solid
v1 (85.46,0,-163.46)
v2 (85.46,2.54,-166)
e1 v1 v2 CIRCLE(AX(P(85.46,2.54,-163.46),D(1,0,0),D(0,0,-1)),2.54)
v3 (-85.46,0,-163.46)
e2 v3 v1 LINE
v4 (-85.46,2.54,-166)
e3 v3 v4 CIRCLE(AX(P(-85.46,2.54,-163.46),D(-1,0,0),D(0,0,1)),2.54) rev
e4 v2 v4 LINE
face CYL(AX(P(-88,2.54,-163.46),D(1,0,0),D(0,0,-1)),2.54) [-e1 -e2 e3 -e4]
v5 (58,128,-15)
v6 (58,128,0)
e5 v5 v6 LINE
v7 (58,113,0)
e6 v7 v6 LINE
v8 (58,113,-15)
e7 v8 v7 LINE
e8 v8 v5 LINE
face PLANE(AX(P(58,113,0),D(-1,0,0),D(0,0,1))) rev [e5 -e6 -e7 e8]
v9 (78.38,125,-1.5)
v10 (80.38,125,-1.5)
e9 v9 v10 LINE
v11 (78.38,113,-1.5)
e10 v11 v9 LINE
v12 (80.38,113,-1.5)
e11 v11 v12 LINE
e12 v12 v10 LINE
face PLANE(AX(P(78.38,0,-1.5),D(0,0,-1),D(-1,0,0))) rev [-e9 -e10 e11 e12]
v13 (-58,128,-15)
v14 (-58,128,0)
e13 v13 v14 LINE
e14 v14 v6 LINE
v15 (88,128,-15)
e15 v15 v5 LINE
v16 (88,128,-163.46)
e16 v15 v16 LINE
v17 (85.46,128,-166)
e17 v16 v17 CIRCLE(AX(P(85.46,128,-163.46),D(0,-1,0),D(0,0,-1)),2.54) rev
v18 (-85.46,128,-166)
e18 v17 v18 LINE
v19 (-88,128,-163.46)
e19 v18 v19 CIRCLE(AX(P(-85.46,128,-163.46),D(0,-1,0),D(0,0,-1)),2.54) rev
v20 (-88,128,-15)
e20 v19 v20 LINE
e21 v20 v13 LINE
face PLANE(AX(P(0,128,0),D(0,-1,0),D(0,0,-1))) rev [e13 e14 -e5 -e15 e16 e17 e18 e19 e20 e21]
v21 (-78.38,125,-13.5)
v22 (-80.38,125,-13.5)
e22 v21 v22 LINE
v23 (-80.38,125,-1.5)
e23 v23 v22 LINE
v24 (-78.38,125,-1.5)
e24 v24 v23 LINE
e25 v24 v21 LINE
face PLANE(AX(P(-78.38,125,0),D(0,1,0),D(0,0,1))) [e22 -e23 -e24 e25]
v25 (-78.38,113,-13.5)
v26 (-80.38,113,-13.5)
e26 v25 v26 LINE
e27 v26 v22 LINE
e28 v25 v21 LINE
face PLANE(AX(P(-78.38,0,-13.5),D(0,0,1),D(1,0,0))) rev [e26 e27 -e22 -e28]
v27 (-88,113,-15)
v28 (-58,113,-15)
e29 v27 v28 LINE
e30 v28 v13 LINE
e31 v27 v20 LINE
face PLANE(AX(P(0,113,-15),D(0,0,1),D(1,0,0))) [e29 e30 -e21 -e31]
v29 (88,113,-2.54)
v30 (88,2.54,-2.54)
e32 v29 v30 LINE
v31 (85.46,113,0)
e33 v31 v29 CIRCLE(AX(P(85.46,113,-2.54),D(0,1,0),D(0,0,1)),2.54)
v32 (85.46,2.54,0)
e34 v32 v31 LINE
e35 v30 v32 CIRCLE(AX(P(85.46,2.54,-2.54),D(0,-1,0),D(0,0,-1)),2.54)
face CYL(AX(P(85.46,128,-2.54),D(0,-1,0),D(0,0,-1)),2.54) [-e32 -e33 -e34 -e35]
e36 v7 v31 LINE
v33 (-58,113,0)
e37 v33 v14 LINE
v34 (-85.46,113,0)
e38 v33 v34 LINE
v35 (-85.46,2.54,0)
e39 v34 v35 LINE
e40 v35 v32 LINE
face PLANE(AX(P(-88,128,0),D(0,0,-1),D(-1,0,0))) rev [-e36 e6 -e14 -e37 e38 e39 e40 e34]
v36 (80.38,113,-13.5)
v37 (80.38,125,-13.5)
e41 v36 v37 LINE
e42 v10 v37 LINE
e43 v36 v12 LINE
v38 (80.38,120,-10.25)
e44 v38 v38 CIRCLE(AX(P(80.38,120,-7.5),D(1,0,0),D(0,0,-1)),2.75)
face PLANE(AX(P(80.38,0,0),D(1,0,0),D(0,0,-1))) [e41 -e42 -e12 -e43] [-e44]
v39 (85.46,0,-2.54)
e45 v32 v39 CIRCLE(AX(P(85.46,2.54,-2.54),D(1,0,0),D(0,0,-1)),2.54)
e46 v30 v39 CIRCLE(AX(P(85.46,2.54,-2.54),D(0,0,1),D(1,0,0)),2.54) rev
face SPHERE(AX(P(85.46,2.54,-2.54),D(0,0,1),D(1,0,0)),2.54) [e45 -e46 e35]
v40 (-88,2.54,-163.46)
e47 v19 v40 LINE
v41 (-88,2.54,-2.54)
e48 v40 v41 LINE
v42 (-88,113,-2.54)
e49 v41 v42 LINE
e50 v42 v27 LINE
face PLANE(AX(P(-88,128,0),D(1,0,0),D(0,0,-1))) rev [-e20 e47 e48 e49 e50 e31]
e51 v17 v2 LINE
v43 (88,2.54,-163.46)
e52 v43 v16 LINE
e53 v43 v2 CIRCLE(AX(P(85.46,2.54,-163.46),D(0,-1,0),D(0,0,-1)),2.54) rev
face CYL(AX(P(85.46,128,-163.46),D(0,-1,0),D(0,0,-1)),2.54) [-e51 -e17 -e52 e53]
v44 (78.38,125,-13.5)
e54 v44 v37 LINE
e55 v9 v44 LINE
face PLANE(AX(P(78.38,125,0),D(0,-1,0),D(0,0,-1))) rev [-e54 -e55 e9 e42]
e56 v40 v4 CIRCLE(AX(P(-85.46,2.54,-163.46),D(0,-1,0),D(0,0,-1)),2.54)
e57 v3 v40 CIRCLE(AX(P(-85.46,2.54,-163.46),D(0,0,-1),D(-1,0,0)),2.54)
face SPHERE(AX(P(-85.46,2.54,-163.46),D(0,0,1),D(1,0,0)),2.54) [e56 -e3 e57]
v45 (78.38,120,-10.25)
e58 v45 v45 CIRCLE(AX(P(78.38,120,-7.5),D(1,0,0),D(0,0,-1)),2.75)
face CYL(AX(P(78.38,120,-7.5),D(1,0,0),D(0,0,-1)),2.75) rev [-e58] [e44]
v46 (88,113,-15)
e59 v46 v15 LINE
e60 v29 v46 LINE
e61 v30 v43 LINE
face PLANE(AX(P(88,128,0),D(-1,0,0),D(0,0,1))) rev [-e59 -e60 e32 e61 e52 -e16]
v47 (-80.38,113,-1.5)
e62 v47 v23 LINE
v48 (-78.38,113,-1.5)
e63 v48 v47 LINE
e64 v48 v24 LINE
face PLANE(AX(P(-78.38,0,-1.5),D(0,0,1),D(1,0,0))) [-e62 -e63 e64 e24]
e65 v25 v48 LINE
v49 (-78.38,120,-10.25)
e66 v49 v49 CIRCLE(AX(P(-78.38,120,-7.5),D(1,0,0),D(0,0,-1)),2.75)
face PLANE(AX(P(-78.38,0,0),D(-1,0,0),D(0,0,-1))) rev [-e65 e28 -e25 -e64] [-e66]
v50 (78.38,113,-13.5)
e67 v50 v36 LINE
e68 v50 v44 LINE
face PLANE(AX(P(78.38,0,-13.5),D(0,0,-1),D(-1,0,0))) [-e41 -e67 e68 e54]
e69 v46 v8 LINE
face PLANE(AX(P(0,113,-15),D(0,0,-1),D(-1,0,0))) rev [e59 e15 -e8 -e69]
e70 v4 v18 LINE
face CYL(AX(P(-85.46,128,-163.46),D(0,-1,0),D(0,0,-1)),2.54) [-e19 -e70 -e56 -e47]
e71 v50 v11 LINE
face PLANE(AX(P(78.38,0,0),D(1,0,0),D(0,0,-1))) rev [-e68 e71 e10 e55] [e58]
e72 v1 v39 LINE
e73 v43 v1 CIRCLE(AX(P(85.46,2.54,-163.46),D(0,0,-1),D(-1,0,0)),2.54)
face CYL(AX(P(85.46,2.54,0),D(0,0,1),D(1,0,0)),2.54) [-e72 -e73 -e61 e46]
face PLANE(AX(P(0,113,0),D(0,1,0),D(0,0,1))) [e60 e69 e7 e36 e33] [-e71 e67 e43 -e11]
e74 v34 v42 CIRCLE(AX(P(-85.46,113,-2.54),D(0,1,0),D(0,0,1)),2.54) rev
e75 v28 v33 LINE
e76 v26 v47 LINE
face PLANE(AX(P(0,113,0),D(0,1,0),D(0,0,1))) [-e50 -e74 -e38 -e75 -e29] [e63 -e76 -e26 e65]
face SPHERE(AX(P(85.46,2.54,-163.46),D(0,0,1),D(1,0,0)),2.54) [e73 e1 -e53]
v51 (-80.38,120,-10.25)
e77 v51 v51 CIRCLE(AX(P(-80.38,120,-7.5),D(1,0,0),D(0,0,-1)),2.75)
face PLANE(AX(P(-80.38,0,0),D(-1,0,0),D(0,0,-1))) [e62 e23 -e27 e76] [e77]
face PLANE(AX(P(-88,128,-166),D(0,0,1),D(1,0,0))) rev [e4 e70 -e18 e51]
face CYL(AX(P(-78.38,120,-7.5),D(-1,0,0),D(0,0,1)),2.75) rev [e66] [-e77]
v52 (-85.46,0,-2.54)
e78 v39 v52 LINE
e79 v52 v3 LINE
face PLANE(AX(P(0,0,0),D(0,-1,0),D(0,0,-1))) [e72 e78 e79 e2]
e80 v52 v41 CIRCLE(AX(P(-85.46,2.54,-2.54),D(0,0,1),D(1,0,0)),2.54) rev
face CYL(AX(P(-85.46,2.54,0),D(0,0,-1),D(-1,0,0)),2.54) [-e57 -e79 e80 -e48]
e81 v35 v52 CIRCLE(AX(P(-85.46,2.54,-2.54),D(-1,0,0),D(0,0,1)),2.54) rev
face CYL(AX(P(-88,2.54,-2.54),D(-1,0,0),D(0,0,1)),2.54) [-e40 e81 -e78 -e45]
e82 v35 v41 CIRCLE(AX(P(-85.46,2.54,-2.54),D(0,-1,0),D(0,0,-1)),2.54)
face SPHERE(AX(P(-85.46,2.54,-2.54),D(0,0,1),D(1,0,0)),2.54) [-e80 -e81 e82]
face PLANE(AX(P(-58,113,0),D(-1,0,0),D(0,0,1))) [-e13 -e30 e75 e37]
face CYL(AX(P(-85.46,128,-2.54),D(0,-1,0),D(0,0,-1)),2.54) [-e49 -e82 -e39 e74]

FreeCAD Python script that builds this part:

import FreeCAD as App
import Part
import Sketcher

V = App.Vector


def edges_at(feature, points):
    """Names of the edges that pass closest to the given points."""
    edges = feature.Shape.Edges
    near = lambda p: min(range(len(edges)), key=lambda i: edges[i].distToShape(Part.Vertex(*p))[0])
    return sorted({f"Edge{near(p) + 1}" for p in points})

doc = App.newDocument("Part")
body = doc.addObject("PartDesign::Body", "Body")

sketch1 = body.newObject("Sketcher::SketchObject", "Sketch")
sketch1.AttachmentSupport = (doc.getObject("XZ_Plane"), [""])
sketch1.MapMode = "FlatFace"
sketch1.addGeometry([
    Part.LineSegment(V(-88, -166, 0), V(-88, 0, 0)),
    Part.LineSegment(V(-88, 0, 0), V(88, 0, 0)),
    Part.LineSegment(V(88, 0, 0), V(88, -166, 0)),
    Part.LineSegment(V(88, -166, 0), V(-88, -166, 0)),
], False)
sketch1.addConstraint([
    Sketcher.Constraint("Coincident", 0, 2, 1, 1),
    Sketcher.Constraint("Coincident", 1, 2, 2, 1),
    Sketcher.Constraint("Coincident", 2, 2, 3, 1),
    Sketcher.Constraint("Coincident", 3, 2, 0, 1),
    Sketcher.Constraint("Vertical", 0),
    Sketcher.Constraint("Horizontal", 1),
    Sketcher.Constraint("Vertical", 2),
    Sketcher.Constraint("Horizontal", 3),
    Sketcher.Constraint("Symmetric", 0, 2, 1, 2, -1, 1),
    Sketcher.Constraint("DistanceX", 1, 1, 1, 2, 176.0),
    Sketcher.Constraint("DistanceY", 0, 1, 0, 2, 166.0),
])
pad1 = body.newObject("PartDesign::Pad", "Pad")
pad1.Profile = sketch1
pad1.Length = 128
pad1.Reversed = True

sketch2 = body.newObject("Sketcher::SketchObject", "Sketch001")
sketch2.AttachmentSupport = (doc.getObject("XZ_Plane"), [""])
sketch2.MapMode = "FlatFace"
sketch2.AttachmentOffset = App.Placement(V(0, 0, -128), App.Rotation())
sketch2.addGeometry([
    Part.LineSegment(V(58, -15, 0), V(58, 0, 0)),
    Part.LineSegment(V(58, 0, 0), V(88, 0, 0)),
    Part.LineSegment(V(88, 0, 0), V(88, -15, 0)),
    Part.LineSegment(V(88, -15, 0), V(58, -15, 0)),
], False)
sketch2.addConstraint([
    Sketcher.Constraint("Coincident", 0, 2, 1, 1),
    Sketcher.Constraint("Coincident", 1, 2, 2, 1),
    Sketcher.Constraint("Coincident", 2, 2, 3, 1),
    Sketcher.Constraint("Coincident", 3, 2, 0, 1),
    Sketcher.Constraint("Vertical", 0),
    Sketcher.Constraint("Horizontal", 1),
    Sketcher.Constraint("Vertical", 2),
    Sketcher.Constraint("Horizontal", 3),
    Sketcher.Constraint("PointOnObject", 0, 2, -1),
    Sketcher.Constraint("DistanceX", 1, 1, 1, 2, 30.0),
    Sketcher.Constraint("DistanceY", 0, 1, 0, 2, 15.0),
    Sketcher.Constraint("DistanceX", -1, 1, 0, 2, 58.0),
])
pocket1 = body.newObject("PartDesign::Pocket", "Pocket")
pocket1.Profile = sketch2
pocket1.Length = 15
pocket1.Reversed = True
doc.recompute()

fillet = body.newObject("PartDesign::Fillet", "Fillet")
fillet.Base = (pocket1, edges_at(pocket1, [
    (88, 56.5, 0),
    (0, 0, -166),
    (88, 0, -83),
    (0, 0, 0),
    (-88, 0, -83),
    (-88, 64, -166),
    (88, 64, -166),
    (-88, 64, 0),
]))
fillet.Radius = 2.54

sketch3 = body.newObject("Sketcher::SketchObject", "Sketch002")
sketch3.AttachmentSupport = (doc.getObject("YZ_Plane"), [""])
sketch3.MapMode = "FlatFace"
sketch3.AttachmentOffset = App.Placement(V(0, 0, 80.38), App.Rotation())
sketch3.addGeometry([
    Part.LineSegment(V(125, -1.5, 0), V(113, -1.5, 0)),
    Part.LineSegment(V(113, -1.5, 0), V(113, -13.5, 0)),
    Part.LineSegment(V(113, -13.5, 0), V(125, -13.5, 0)),
    Part.LineSegment(V(125, -13.5, 0), V(125, -1.5, 0)),
    Part.Circle(V(120, -7.5, 0), V(0, 0, 1), 2.8),
], False)
sketch3.addConstraint([
    Sketcher.Constraint("Coincident", 0, 2, 1, 1),
    Sketcher.Constraint("Coincident", 1, 2, 2, 1),
    Sketcher.Constraint("Coincident", 2, 2, 3, 1),
    Sketcher.Constraint("Coincident", 3, 2, 0, 1),
    Sketcher.Constraint("Horizontal", 0),
    Sketcher.Constraint("Vertical", 1),
    Sketcher.Constraint("Horizontal", 2),
    Sketcher.Constraint("Vertical", 3),
    Sketcher.Constraint("Equal", 2, 1),
    Sketcher.Constraint("Diameter", 4, 5.5),
    Sketcher.Constraint("DistanceX", 0, 2, 0, 1, 12.0),
    Sketcher.Constraint("DistanceX", -1, 1, 4, 3, 120.0),
    Sketcher.Constraint("DistanceX", -1, 1, 0, 2, 113.0),
    Sketcher.Constraint("DistanceY", 4, 3, 0, 2, 6.0),
    Sketcher.Constraint("DistanceY", 4, 3, -1, 1, 7.5),
])
pad2 = body.newObject("PartDesign::Pad", "Pad001")
pad2.Profile = sketch3
pad2.Length = 2
pad2.Reversed = True
doc.recompute()

mirrored = body.newObject("PartDesign::Mirrored", "Mirrored")
mirrored.Originals = [pocket1, pad2]
mirrored.MirrorPlane = (doc.getObject("YZ_Plane"), [""])
body.Tip = mirrored

doc.recompute()
